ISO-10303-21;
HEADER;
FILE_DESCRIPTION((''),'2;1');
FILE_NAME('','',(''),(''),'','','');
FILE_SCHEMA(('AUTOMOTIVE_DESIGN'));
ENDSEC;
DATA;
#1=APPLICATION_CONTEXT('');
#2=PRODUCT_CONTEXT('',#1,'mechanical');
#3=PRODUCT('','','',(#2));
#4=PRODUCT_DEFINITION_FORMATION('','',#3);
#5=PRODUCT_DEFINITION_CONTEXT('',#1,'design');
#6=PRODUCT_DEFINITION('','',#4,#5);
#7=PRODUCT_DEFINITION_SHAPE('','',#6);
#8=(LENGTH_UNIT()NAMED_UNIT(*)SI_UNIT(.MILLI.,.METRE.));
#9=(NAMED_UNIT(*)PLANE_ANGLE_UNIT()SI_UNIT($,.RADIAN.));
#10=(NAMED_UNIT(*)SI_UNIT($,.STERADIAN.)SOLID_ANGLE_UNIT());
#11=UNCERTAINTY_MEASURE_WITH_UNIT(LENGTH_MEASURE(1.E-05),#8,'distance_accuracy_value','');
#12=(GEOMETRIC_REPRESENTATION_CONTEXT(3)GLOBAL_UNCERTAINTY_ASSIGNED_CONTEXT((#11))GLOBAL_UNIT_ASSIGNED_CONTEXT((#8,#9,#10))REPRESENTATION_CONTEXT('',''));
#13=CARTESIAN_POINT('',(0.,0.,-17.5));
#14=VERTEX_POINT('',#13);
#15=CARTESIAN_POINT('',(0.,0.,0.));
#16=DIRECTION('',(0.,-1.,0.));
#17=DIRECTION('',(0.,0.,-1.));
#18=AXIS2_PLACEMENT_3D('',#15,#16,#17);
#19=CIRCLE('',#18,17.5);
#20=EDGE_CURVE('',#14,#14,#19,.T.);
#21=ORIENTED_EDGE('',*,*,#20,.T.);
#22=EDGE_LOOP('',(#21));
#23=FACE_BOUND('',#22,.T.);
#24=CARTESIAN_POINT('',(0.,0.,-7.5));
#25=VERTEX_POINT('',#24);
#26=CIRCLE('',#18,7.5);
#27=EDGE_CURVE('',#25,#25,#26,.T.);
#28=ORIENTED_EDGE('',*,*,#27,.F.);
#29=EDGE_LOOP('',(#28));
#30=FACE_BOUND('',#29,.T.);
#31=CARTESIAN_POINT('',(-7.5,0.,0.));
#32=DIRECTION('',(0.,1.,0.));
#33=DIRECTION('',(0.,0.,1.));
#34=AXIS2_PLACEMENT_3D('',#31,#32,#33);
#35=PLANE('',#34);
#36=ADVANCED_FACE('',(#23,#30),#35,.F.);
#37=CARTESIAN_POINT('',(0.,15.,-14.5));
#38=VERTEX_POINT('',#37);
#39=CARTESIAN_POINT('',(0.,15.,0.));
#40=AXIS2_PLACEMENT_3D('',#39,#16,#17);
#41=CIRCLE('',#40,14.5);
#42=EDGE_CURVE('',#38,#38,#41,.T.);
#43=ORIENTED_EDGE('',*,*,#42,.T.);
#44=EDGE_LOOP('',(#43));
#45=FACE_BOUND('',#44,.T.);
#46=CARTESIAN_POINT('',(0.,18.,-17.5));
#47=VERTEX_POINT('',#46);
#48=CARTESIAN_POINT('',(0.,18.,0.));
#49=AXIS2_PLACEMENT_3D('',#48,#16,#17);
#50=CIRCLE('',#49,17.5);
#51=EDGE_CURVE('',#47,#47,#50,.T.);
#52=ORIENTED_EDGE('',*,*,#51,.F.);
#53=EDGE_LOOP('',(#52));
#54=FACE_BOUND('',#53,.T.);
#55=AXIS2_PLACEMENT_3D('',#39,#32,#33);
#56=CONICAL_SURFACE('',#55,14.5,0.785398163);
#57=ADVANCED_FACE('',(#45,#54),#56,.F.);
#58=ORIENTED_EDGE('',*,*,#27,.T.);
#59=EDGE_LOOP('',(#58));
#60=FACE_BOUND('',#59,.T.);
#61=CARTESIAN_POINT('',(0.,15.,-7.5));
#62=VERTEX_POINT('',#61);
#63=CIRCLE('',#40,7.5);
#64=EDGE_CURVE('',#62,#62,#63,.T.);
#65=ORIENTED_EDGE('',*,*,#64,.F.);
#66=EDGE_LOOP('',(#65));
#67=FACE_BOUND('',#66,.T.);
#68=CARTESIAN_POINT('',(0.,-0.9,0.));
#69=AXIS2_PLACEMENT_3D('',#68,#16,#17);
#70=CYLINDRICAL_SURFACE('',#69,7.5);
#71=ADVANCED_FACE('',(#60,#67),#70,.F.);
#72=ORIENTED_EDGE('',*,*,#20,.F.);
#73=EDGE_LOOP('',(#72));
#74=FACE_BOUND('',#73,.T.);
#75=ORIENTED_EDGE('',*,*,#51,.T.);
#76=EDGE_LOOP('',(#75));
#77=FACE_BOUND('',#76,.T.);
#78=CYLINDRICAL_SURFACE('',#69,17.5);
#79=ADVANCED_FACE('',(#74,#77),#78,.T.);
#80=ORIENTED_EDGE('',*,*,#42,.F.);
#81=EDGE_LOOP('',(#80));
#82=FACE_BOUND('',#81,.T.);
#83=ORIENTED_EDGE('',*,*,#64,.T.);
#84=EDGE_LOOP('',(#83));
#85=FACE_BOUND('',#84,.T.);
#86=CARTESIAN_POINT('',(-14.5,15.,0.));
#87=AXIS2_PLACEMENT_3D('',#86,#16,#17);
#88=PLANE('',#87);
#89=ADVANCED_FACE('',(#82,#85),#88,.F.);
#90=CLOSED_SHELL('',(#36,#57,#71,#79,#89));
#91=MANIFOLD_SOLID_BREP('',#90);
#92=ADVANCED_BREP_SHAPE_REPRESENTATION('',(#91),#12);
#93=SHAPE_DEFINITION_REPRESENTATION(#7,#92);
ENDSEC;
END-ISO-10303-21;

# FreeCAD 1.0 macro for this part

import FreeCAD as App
import Part
import Sketcher

V = App.Vector

doc = App.newDocument("Part")
params = doc.addObject("Spreadsheet::Sheet", "Params")
for row, (alias, value) in enumerate([
    ("sketch1_width", "10 mm"),
    ("sketch1_width2", "7 mm"),
    ("sketch1_height", "15 mm"),
    ("sketch1_height2", "18 mm"),
    ("revolution_angle", "360 deg"),
], start=1):
    params.set(f"A{row}", alias)
    params.set(f"B{row}", "=" + value)
    params.setAlias(f"B{row}", alias)

body = doc.addObject("PartDesign::Body", "Body")

# Sketch on XY plane
sketch1 = body.newObject("Sketcher::SketchObject", "Sketch")
sketch1.AttachmentSupport = (doc.getObject("XY_Plane"), [""])
sketch1.MapMode = "FlatFace"
sketch1.addGeometry([
    Part.LineSegment(V(-17.5, 0, 0), V(-7.5, 0, 0)),  # 0
    Part.LineSegment(V(-7.5, 0, 0), V(-7.5, 15, 0)),  # 1
    Part.LineSegment(V(-7.5, 15, 0), V(-14.5, 15, 0)),  # 2
    Part.LineSegment(V(-14.5, 15, 0), V(-17.5, 18, 0)),  # 3
    Part.LineSegment(V(-17.5, 18, 0), V(-17.5, 0, 0)),  # 4
], False)
sketch1.addConstraint([
    Sketcher.Constraint("Coincident", 0, 2, 1, 1),
    Sketcher.Constraint("Coincident", 1, 2, 2, 1),
    Sketcher.Constraint("Coincident", 2, 2, 3, 1),
    Sketcher.Constraint("Coincident", 3, 2, 4, 1),
    Sketcher.Constraint("Coincident", 4, 2, 0, 1),
    Sketcher.Constraint("Horizontal", 0),
    Sketcher.Constraint("Vertical", 1),
    Sketcher.Constraint("Horizontal", 2),
    Sketcher.Constraint("Vertical", 4),
    Sketcher.Constraint("PointOnObject", 0, 2, -1),
    Sketcher.Constraint("DistanceX", 0, 1, 0, 2, 10.0),
    Sketcher.Constraint("DistanceX", 2, 2, 2, 1, 7.0),
    Sketcher.Constraint("DistanceY", 1, 1, 1, 2, 15.0),
    Sketcher.Constraint("DistanceY", 4, 2, 4, 1, 18.0),
    Sketcher.Constraint("DistanceX", 0, 2, -1, 1, 7.5),
])
sketch1.setExpression("Constraints[10]", "Params.sketch1_width")
sketch1.setExpression("Constraints[11]", "Params.sketch1_width2")
sketch1.setExpression("Constraints[12]", "Params.sketch1_height")
sketch1.setExpression("Constraints[13]", "Params.sketch1_height2")
revolution = body.newObject("PartDesign::Revolution", "Revolution")
revolution.Profile = sketch1
revolution.ReferenceAxis = (sketch1, ["V_Axis"])
revolution.setExpression("Angle", "Params.revolution_angle")

doc.recompute()
